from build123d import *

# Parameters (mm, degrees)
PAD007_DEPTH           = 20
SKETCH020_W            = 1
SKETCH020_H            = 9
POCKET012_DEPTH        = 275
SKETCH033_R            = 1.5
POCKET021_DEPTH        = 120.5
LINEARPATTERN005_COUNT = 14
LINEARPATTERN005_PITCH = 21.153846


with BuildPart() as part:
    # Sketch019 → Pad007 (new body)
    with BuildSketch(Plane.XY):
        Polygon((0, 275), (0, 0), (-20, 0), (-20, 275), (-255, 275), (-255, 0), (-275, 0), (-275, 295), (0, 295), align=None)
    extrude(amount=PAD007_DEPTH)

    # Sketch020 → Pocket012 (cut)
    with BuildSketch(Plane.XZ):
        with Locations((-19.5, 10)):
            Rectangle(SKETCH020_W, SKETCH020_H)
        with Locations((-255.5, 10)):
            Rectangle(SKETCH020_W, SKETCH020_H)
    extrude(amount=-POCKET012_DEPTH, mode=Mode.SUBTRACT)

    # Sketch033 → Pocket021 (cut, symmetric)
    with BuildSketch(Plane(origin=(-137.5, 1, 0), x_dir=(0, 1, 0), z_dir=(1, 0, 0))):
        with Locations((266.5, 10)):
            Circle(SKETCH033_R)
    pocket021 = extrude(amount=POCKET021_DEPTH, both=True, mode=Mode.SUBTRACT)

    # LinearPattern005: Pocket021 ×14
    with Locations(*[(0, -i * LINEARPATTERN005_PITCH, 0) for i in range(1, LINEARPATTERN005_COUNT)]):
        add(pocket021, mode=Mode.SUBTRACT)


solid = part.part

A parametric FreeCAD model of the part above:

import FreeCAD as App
import Part
import Sketcher
from FreeCAD import Vector

doc = App.newDocument("Part")
body = doc.addObject("PartDesign::Body", "Body")

# Sketch on XY plane
sketch1 = body.newObject("Sketcher::SketchObject", "Sketch")
sketch1.AttachmentSupport = (doc.getObject("XY_Plane"), [""])
sketch1.MapMode = "FlatFace"
sketch1.addGeometry(Part.LineSegment(Vector(0, 0, 0), Vector(0, 295, 0)), False)
sketch1.addGeometry(Part.LineSegment(Vector(0, 295, 0), Vector(-275, 295, 0)), False)
sketch1.addGeometry(Part.LineSegment(Vector(-275, 295, 0), Vector(-275, 0, 0)), False)
sketch1.addGeometry(Part.LineSegment(Vector(-275, 0, 0), Vector(-255, 0, 0)), False)
sketch1.addGeometry(Part.LineSegment(Vector(-255, 0, 0), Vector(-255, 275, 0)), False)
sketch1.addGeometry(Part.LineSegment(Vector(-255, 275, 0), Vector(-20, 275, 0)), False)
sketch1.addGeometry(Part.LineSegment(Vector(-20, 275, 0), Vector(-20, 0, 0)), False)
sketch1.addGeometry(Part.LineSegment(Vector(-20, 0, 0), Vector(0, 0, 0)), False)
sketch1.addConstraint(Sketcher.Constraint("Coincident", 0, 2, 1, 1))
sketch1.addConstraint(Sketcher.Constraint("Coincident", 1, 2, 2, 1))
sketch1.addConstraint(Sketcher.Constraint("Coincident", 2, 2, 3, 1))
sketch1.addConstraint(Sketcher.Constraint("Coincident", 3, 2, 4, 1))
sketch1.addConstraint(Sketcher.Constraint("Coincident", 4, 2, 5, 1))
sketch1.addConstraint(Sketcher.Constraint("Coincident", 5, 2, 6, 1))
sketch1.addConstraint(Sketcher.Constraint("Coincident", 6, 2, 7, 1))
sketch1.addConstraint(Sketcher.Constraint("Coincident", 7, 2, 0, 1))
sketch1.addConstraint(Sketcher.Constraint("Vertical", 0))
sketch1.addConstraint(Sketcher.Constraint("Horizontal", 1))
sketch1.addConstraint(Sketcher.Constraint("Vertical", 2))
sketch1.addConstraint(Sketcher.Constraint("Horizontal", 3))
sketch1.addConstraint(Sketcher.Constraint("Vertical", 4))
sketch1.addConstraint(Sketcher.Constraint("Horizontal", 5))
sketch1.addConstraint(Sketcher.Constraint("Vertical", 6))
sketch1.addConstraint(Sketcher.Constraint("Horizontal", 7))
sketch1.addConstraint(Sketcher.Constraint("Coincident", 7, 2, -1, 1))
sketch1.addConstraint(Sketcher.Constraint("PointOnObject", 2, 2, -1))
sketch1.addConstraint(Sketcher.Constraint("Equal", 3, 7))
sketch1.addConstraint(Sketcher.Constraint("Equal", 1, 4))
sketch1.addConstraint(Sketcher.Constraint("DistanceX", 1, 2, 1, 1, 275.0))
sketch1.addConstraint(Sketcher.Constraint("DistanceX", 3, 1, 3, 2, 20.0))
sketch1.addConstraint(Sketcher.Constraint("DistanceY", 0, 1, 0, 2, 295.0))
pad1 = body.newObject("PartDesign::Pad", "Pad")
pad1.Profile = sketch1
pad1.Length = 20

# Sketch on XZ plane
sketch2 = body.newObject("Sketcher::SketchObject", "Sketch001")
sketch2.AttachmentSupport = (doc.getObject("XZ_Plane"), [""])
sketch2.MapMode = "FlatFace"
sketch2.addGeometry(Part.LineSegment(Vector(-20, 14.5, 0), Vector(-20, 5.5, 0)), False)
sketch2.addGeometry(Part.LineSegment(Vector(-20, 5.5, 0), Vector(-19, 5.5, 0)), False)
sketch2.addGeometry(Part.LineSegment(Vector(-19, 5.5, 0), Vector(-19, 14.5, 0)), False)
sketch2.addGeometry(Part.LineSegment(Vector(-19, 14.5, 0), Vector(-20, 14.5, 0)), False)
sketch2.addGeometry(Part.LineSegment(Vector(-256, 14.5, 0), Vector(-256, 5.5, 0)), False)
sketch2.addGeometry(Part.LineSegment(Vector(-256, 5.5, 0), Vector(-255, 5.5, 0)), False)
sketch2.addGeometry(Part.LineSegment(Vector(-255, 5.5, 0), Vector(-255, 14.5, 0)), False)
sketch2.addGeometry(Part.LineSegment(Vector(-255, 14.5, 0), Vector(-256, 14.5, 0)), False)
sketch2.addConstraint(Sketcher.Constraint("Coincident", 0, 2, 1, 1))
sketch2.addConstraint(Sketcher.Constraint("Coincident", 1, 2, 2, 1))
sketch2.addConstraint(Sketcher.Constraint("Coincident", 2, 2, 3, 1))
sketch2.addConstraint(Sketcher.Constraint("Coincident", 3, 2, 0, 1))
sketch2.addConstraint(Sketcher.Constraint("Coincident", 4, 2, 5, 1))
sketch2.addConstraint(Sketcher.Constraint("Coincident", 5, 2, 6, 1))
sketch2.addConstraint(Sketcher.Constraint("Coincident", 6, 2, 7, 1))
sketch2.addConstraint(Sketcher.Constraint("Coincident", 7, 2, 4, 1))
sketch2.addConstraint(Sketcher.Constraint("Vertical", 0))
sketch2.addConstraint(Sketcher.Constraint("Horizontal", 1))
sketch2.addConstraint(Sketcher.Constraint("Vertical", 2))
sketch2.addConstraint(Sketcher.Constraint("Horizontal", 3))
sketch2.addConstraint(Sketcher.Constraint("Vertical", 4))
sketch2.addConstraint(Sketcher.Constraint("Horizontal", 5))
sketch2.addConstraint(Sketcher.Constraint("Vertical", 6))
sketch2.addConstraint(Sketcher.Constraint("Horizontal", 7))
sketch2.addConstraint(Sketcher.Constraint("Horizontal", 1, 2, 4, 2))
sketch2.addConstraint(Sketcher.Constraint("Horizontal", 3, 2, 6, 2))
sketch2.addConstraint(Sketcher.Constraint("Equal", 3, 5))
sketch2.addConstraint(Sketcher.Constraint("DistanceX", 1, 1, 1, 2, 1.0))
sketch2.addConstraint(Sketcher.Constraint("DistanceY", 0, 2, 0, 1, 9.0))
sketch2.addConstraint(Sketcher.Constraint("DistanceX", 0, 2, -1, 1, 20.0))
sketch2.addConstraint(Sketcher.Constraint("DistanceX", 4, 2, -1, 1, 256.0))
sketch2.addConstraint(Sketcher.Constraint("DistanceY", -1, 1, 0, 2, 5.5))
pocket1 = body.newObject("PartDesign::Pocket", "Pocket")
pocket1.Profile = sketch2
pocket1.Length = 275

# Sketch on YZ plane
sketch3 = body.newObject("Sketcher::SketchObject", "Sketch002")
sketch3.AttachmentSupport = (doc.getObject("YZ_Plane"), [""])
sketch3.MapMode = "FlatFace"
sketch3.AttachmentOffset = App.Placement(Vector(0, 0, -137.5), App.Rotation())
sketch3.addGeometry(Part.Circle(Vector(267.5, 10, 0), Vector(0, 0, 1), 1.5), False)
sketch3.addConstraint(Sketcher.Constraint("Diameter", 0, 3.0))
sketch3.addConstraint(Sketcher.Constraint("DistanceY", -1, 1, 0, 3, 10.0))
sketch3.addConstraint(Sketcher.Constraint("DistanceX", -1, 1, 0, 3, 267.5))
pocket2 = body.newObject("PartDesign::Pocket", "Pocket001")
pocket2.Profile = sketch3
pocket2.Length = 241
pocket2.Midplane = True
doc.recompute()

linearpattern = body.newObject("PartDesign::LinearPattern", "LinearPattern")
linearpattern.Originals = [pocket2]
linearpattern.Direction = (doc.getObject("Y_Axis"), [""])
linearpattern.Mode = "offset"
linearpattern.Offset = 21.153846
linearpattern.Occurrences = 14
linearpattern.Reversed = True
body.Tip = linearpattern

doc.recompute()
